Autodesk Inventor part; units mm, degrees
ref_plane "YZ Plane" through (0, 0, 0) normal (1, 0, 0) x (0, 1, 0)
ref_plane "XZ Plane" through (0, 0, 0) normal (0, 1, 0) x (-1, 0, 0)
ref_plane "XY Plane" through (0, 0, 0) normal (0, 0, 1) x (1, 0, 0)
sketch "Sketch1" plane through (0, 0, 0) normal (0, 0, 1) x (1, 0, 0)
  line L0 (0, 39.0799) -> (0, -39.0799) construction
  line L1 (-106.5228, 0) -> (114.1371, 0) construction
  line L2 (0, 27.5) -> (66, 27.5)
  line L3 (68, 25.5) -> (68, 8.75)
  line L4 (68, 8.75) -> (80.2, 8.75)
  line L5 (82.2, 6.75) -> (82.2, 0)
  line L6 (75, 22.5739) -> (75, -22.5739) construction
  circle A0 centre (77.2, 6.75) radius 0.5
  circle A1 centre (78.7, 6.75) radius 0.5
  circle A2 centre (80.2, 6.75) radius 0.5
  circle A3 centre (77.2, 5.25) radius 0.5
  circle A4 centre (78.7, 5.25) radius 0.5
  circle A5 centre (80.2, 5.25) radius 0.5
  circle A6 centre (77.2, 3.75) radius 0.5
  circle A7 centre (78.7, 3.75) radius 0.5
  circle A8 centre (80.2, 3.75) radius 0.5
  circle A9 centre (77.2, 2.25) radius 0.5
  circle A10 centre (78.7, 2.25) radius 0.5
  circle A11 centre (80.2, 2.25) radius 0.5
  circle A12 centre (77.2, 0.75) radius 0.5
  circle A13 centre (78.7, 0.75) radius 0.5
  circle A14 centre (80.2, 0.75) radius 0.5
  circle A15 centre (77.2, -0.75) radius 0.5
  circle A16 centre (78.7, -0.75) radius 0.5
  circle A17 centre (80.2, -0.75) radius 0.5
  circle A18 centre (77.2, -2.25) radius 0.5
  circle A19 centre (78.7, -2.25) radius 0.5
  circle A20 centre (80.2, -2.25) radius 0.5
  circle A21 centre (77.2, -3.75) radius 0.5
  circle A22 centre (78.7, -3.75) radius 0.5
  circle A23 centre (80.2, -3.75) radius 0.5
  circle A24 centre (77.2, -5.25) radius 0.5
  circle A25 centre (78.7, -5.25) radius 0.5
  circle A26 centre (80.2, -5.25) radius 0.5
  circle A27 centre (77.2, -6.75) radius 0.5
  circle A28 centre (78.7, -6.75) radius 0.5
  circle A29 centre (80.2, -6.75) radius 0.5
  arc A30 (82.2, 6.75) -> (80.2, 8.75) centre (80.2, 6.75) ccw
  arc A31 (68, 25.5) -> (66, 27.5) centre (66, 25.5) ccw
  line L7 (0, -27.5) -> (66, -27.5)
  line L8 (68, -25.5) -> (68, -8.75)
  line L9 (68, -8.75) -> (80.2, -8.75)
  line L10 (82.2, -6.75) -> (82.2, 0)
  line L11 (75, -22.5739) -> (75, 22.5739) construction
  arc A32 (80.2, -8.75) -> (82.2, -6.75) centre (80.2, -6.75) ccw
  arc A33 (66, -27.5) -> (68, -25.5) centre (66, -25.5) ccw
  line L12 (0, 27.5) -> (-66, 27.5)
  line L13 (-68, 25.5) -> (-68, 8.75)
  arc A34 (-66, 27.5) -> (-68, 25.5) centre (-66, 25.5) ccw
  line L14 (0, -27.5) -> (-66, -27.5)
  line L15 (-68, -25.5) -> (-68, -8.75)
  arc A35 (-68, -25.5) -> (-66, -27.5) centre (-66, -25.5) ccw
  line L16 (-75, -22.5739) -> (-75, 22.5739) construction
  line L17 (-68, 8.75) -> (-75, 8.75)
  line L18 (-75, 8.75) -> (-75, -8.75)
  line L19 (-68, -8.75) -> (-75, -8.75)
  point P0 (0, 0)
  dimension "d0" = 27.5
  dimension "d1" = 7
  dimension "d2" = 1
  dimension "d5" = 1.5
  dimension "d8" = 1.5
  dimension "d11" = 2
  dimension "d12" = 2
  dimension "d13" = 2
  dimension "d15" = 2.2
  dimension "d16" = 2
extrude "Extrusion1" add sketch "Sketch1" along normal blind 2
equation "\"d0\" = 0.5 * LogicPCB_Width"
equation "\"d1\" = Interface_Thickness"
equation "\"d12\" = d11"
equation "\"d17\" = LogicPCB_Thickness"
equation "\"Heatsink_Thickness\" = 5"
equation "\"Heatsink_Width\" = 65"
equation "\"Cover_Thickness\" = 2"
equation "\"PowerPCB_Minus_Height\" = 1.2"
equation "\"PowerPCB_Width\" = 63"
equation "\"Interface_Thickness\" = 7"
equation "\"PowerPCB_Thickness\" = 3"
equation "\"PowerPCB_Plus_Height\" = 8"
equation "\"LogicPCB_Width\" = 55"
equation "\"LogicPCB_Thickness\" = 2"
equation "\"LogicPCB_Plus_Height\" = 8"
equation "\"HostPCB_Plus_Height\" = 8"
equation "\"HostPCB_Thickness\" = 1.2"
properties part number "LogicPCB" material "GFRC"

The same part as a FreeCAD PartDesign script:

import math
import FreeCAD as App
import Part
import Sketcher
from FreeCAD import Vector
Q = App.Units.Quantity

doc = App.newDocument("Part")
body = doc.addObject("PartDesign::Body", "Body")

# Sketch on XY plane
sketch1 = body.newObject("Sketcher::SketchObject", "Sketch")
sketch1.AttachmentSupport = (doc.getObject("XY_Plane"), [""])
sketch1.MapMode = "FlatFace"
sketch1.addGeometry([
    Part.LineSegment(Vector(66, 27.5, 0), Vector(-66, 27.5, 0)),  # 0
    Part.ArcOfCircle(Part.Circle(Vector(-66, 25.5, 0), Vector(0, 0, 1), 2), math.radians(90), math.radians(180)),  # 1
    Part.LineSegment(Vector(-68, 25.5, 0), Vector(-68, 8.75, 0)),  # 2
    Part.LineSegment(Vector(-68, 8.75, 0), Vector(-75, 8.75, 0)),  # 3
    Part.LineSegment(Vector(-75, 8.75, 0), Vector(-75, -8.75, 0)),  # 4
    Part.LineSegment(Vector(-75, -8.75, 0), Vector(-68, -8.75, 0)),  # 5
    Part.LineSegment(Vector(-68, -8.75, 0), Vector(-68, -25.5, 0)),  # 6
    Part.ArcOfCircle(Part.Circle(Vector(-66, -25.5, 0), Vector(0, 0, 1), 2), math.radians(180), math.radians(270)),  # 7
    Part.LineSegment(Vector(-66, -27.5, 0), Vector(66, -27.5, 0)),  # 8
    Part.ArcOfCircle(Part.Circle(Vector(66, -25.5, 0), Vector(0, 0, 1), 2), math.radians(-90), math.radians(0)),  # 9
    Part.LineSegment(Vector(68, -25.5, 0), Vector(68, -8.75, 0)),  # 10
    Part.LineSegment(Vector(68, -8.75, 0), Vector(80.2, -8.75, 0)),  # 11
    Part.ArcOfCircle(Part.Circle(Vector(80.2, -6.75, 0), Vector(0, 0, 1), 2), math.radians(-90), math.radians(0)),  # 12
    Part.LineSegment(Vector(82.2, -6.75, 0), Vector(82.2, 6.75, 0)),  # 13
    Part.ArcOfCircle(Part.Circle(Vector(80.2, 6.75, 0), Vector(0, 0, 1), 2), math.radians(0), math.radians(90)),  # 14
    Part.LineSegment(Vector(80.2, 8.75, 0), Vector(68, 8.75, 0)),  # 15
    Part.LineSegment(Vector(68, 8.75, 0), Vector(68, 25.5, 0)),  # 16
    Part.ArcOfCircle(Part.Circle(Vector(66, 25.5, 0), Vector(0, 0, 1), 2), math.radians(0), math.radians(90)),  # 17
    Part.Circle(Vector(77.2, -6.75, 0), Vector(0, 0, 1), 0.5),  # 18
    Part.Circle(Vector(77.2, -5.25, 0), Vector(0, 0, 1), 0.5),  # 19
    Part.Circle(Vector(78.7, -6.75, 0), Vector(0, 0, 1), 0.5),  # 20
    Part.Circle(Vector(80.2, -6.75, 0), Vector(0, 0, 1), 0.5),  # 21
    Part.Circle(Vector(78.7, -5.25, 0), Vector(0, 0, 1), 0.5),  # 22
    Part.Circle(Vector(80.2, -5.25, 0), Vector(0, 0, 1), 0.5),  # 23
    Part.Circle(Vector(77.2, -3.75, 0), Vector(0, 0, 1), 0.5),  # 24
    Part.Circle(Vector(78.7, -3.75, 0), Vector(0, 0, 1), 0.5),  # 25
    Part.Circle(Vector(80.2, -3.75, 0), Vector(0, 0, 1), 0.5),  # 26
    Part.Circle(Vector(77.2, -2.25, 0), Vector(0, 0, 1), 0.5),  # 27
    Part.Circle(Vector(78.7, -2.25, 0), Vector(0, 0, 1), 0.5),  # 28
    Part.Circle(Vector(80.2, -2.25, 0), Vector(0, 0, 1), 0.5),  # 29
    Part.Circle(Vector(77.2, -0.75, 0), Vector(0, 0, 1), 0.5),  # 30
    Part.Circle(Vector(78.7, -0.75, 0), Vector(0, 0, 1), 0.5),  # 31
    Part.Circle(Vector(80.2, -0.75, 0), Vector(0, 0, 1), 0.5),  # 32
    Part.Circle(Vector(77.2, 0.75, 0), Vector(0, 0, 1), 0.5),  # 33
    Part.Circle(Vector(78.7, 0.75, 0), Vector(0, 0, 1), 0.5),  # 34
    Part.Circle(Vector(80.2, 0.75, 0), Vector(0, 0, 1), 0.5),  # 35
    Part.Circle(Vector(77.2, 2.25, 0), Vector(0, 0, 1), 0.5),  # 36
    Part.Circle(Vector(78.7, 2.25, 0), Vector(0, 0, 1), 0.5),  # 37
    Part.Circle(Vector(80.2, 2.25, 0), Vector(0, 0, 1), 0.5),  # 38
    Part.Circle(Vector(77.2, 3.75, 0), Vector(0, 0, 1), 0.5),  # 39
    Part.Circle(Vector(78.7, 3.75, 0), Vector(0, 0, 1), 0.5),  # 40
    Part.Circle(Vector(80.2, 3.75, 0), Vector(0, 0, 1), 0.5),  # 41
    Part.Circle(Vector(77.2, 5.25, 0), Vector(0, 0, 1), 0.5),  # 42
    Part.Circle(Vector(77.2, 6.75, 0), Vector(0, 0, 1), 0.5),  # 43
    Part.Circle(Vector(78.7, 5.25, 0), Vector(0, 0, 1), 0.5),  # 44
    Part.Circle(Vector(80.2, 5.25, 0), Vector(0, 0, 1), 0.5),  # 45
    Part.Circle(Vector(78.7, 6.75, 0), Vector(0, 0, 1), 0.5),  # 46
    Part.Circle(Vector(80.2, 6.75, 0), Vector(0, 0, 1), 0.5),  # 47
], False)
sketch1.addConstraint([
    Sketcher.Constraint("Tangent", 0, 2, 1, 1),
    Sketcher.Constraint("Tangent", 1, 2, 2, 1),
    Sketcher.Constraint("Coincident", 2, 2, 3, 1),
    Sketcher.Constraint("Coincident", 3, 2, 4, 1),
    Sketcher.Constraint("Coincident", 4, 2, 5, 1),
    Sketcher.Constraint("Coincident", 5, 2, 6, 1),
    Sketcher.Constraint("Tangent", 6, 2, 7, 1),
    Sketcher.Constraint("Tangent", 7, 2, 8, 1),
    Sketcher.Constraint("Tangent", 8, 2, 9, 1),
    Sketcher.Constraint("Tangent", 9, 2, 10, 1),
    Sketcher.Constraint("Coincident", 10, 2, 11, 1),
    Sketcher.Constraint("Tangent", 11, 2, 12, 1),
    Sketcher.Constraint("Tangent", 12, 2, 13, 1),
    Sketcher.Constraint("Tangent", 13, 2, 14, 1),
    Sketcher.Constraint("Tangent", 14, 2, 15, 1),
    Sketcher.Constraint("Coincident", 15, 2, 16, 1),
    Sketcher.Constraint("Tangent", 16, 2, 17, 1),
    Sketcher.Constraint("Tangent", 17, 2, 0, 1),
    Sketcher.Constraint("Horizontal", 0),
    Sketcher.Constraint("Vertical", 2),
    Sketcher.Constraint("Horizontal", 3),
    Sketcher.Constraint("Vertical", 4),
    Sketcher.Constraint("Horizontal", 5),
    Sketcher.Constraint("Vertical", 6),
    Sketcher.Constraint("Horizontal", 8),
    Sketcher.Constraint("Vertical", 10),
    Sketcher.Constraint("Horizontal", 11),
    Sketcher.Constraint("Vertical", 13),
    Sketcher.Constraint("Horizontal", 15),
    Sketcher.Constraint("Vertical", 16),
    Sketcher.Constraint("Coincident", 21, 3, 12, 3),
    Sketcher.Constraint("Coincident", 47, 3, 14, 3),
    Sketcher.Constraint("Equal", 1, 7),
    Sketcher.Constraint("Equal", 7, 9),
    Sketcher.Constraint("Equal", 9, 12),
    Sketcher.Constraint("Equal", 12, 14),
    Sketcher.Constraint("Equal", 14, 17),
    Sketcher.Constraint("Equal", 18, 19),
    Sketcher.Constraint("Equal", 19, 20),
    Sketcher.Constraint("Equal", 20, 21),
    Sketcher.Constraint("Equal", 21, 22),
    Sketcher.Constraint("Equal", 22, 23),
    Sketcher.Constraint("Equal", 23, 24),
    Sketcher.Constraint("Equal", 24, 25),
    Sketcher.Constraint("Equal", 25, 26),
    Sketcher.Constraint("Equal", 26, 27),
    Sketcher.Constraint("Equal", 27, 28),
    Sketcher.Constraint("Equal", 28, 29),
    Sketcher.Constraint("Equal", 29, 30),
    Sketcher.Constraint("Equal", 30, 31),
    Sketcher.Constraint("Equal", 31, 32),
    Sketcher.Constraint("Equal", 32, 33),
    Sketcher.Constraint("Equal", 33, 34),
    Sketcher.Constraint("Equal", 34, 35),
    Sketcher.Constraint("Equal", 35, 36),
    Sketcher.Constraint("Equal", 36, 37),
    Sketcher.Constraint("Equal", 37, 38),
    Sketcher.Constraint("Equal", 38, 39),
    Sketcher.Constraint("Equal", 39, 40),
    Sketcher.Constraint("Equal", 40, 41),
    Sketcher.Constraint("Equal", 41, 42),
    Sketcher.Constraint("Equal", 42, 43),
    Sketcher.Constraint("Equal", 43, 44),
    Sketcher.Constraint("Equal", 44, 45),
    Sketcher.Constraint("Equal", 45, 46),
    Sketcher.Constraint("Equal", 46, 47),
    Sketcher.Constraint("Symmetric", 1, 3, 9, 3, -1, 1),
    Sketcher.Constraint("Symmetric", 5, 2, 15, 2, -1, 1),
    Sketcher.Constraint("Symmetric", 5, 2, 10, 2, -2),
    Sketcher.Constraint("Symmetric", 30, 3, 33, 3, -1),
    Sketcher.Constraint("Symmetric", 31, 3, 34, 3, -1),
    Sketcher.Constraint("Symmetric", 32, 3, 35, 3, -1),
    Sketcher.Constraint("Symmetric", 27, 3, 36, 3, -1),
    Sketcher.Constraint("Symmetric", 28, 3, 37, 3, -1),
    Sketcher.Constraint("Symmetric", 29, 3, 38, 3, -1),
    Sketcher.Constraint("Symmetric", 24, 3, 39, 3, -1),
    Sketcher.Constraint("Symmetric", 25, 3, 40, 3, -1),
    Sketcher.Constraint("Symmetric", 26, 3, 41, 3, -1),
    Sketcher.Constraint("Symmetric", 19, 3, 42, 3, -1),
    Sketcher.Constraint("Symmetric", 18, 3, 43, 3, -1),
    Sketcher.Constraint("Symmetric", 22, 3, 44, 3, -1),
    Sketcher.Constraint("Symmetric", 23, 3, 45, 3, -1),
    Sketcher.Constraint("Symmetric", 20, 3, 46, 3, -1),
    Sketcher.Constraint("Horizontal", 12, 3, 18, 3),
    Sketcher.Constraint("Horizontal", 18, 3, 20, 3),
    Sketcher.Constraint("Horizontal", 19, 3, 22, 3),
    Sketcher.Constraint("Horizontal", 22, 3, 23, 3),
    Sketcher.Constraint("Horizontal", 24, 3, 25, 3),
    Sketcher.Constraint("Horizontal", 25, 3, 26, 3),
    Sketcher.Constraint("Horizontal", 27, 3, 28, 3),
    Sketcher.Constraint("Horizontal", 28, 3, 29, 3),
    Sketcher.Constraint("Horizontal", 30, 3, 31, 3),
    Sketcher.Constraint("Horizontal", 31, 3, 32, 3),
    Sketcher.Constraint("Horizontal", 3, 2, 14, 2),
    Sketcher.Constraint("Vertical", 18, 3, 19, 3),
    Sketcher.Constraint("Vertical", 20, 3, 22, 3),
    Sketcher.Constraint("Vertical", 21, 3, 23, 3),
    Sketcher.Constraint("Vertical", 19, 3, 24, 3),
    Sketcher.Constraint("Vertical", 22, 3, 25, 3),
    Sketcher.Constraint("Vertical", 23, 3, 26, 3),
    Sketcher.Constraint("Vertical", 24, 3, 27, 3),
    Sketcher.Constraint("Vertical", 25, 3, 28, 3),
    Sketcher.Constraint("Vertical", 26, 3, 29, 3),
    Sketcher.Constraint("Vertical", 27, 3, 30, 3),
    Sketcher.Constraint("Vertical", 28, 3, 31, 3),
    Sketcher.Constraint("Vertical", 29, 3, 32, 3),
    Sketcher.Constraint("Diameter", 18, Q("1 mm")),
    Sketcher.Constraint("Radius", 1, Q("2 mm")),
    Sketcher.Constraint("DistanceX", 3, 2, 3, 1, Q("7 mm")),
    Sketcher.Constraint("DistanceY", -1, 1, 0, 2, Q("27.5 mm")),
    Sketcher.Constraint("DistanceY", 18, 3, 19, 3, Q("1.5 mm")),
    Sketcher.Constraint("DistanceX", 20, 3, 12, 3, Q("1.5 mm")),
    Sketcher.Constraint("DistanceX", 18, 3, 20, 3, Q("1.5 mm")),
    Sketcher.Constraint("DistanceY", 19, 3, 24, 3, Q("1.5 mm")),
    Sketcher.Constraint("DistanceY", 24, 3, 27, 3, Q("1.5 mm")),
    Sketcher.Constraint("DistanceY", 27, 3, 30, 3, Q("1.5 mm")),
    Sketcher.Constraint("DistanceY", 30, 3, 33, 3, Q("1.5 mm")),
    Sketcher.Constraint("DistanceX", 0, 2, 0, 1, Q("132 mm")),
    Sketcher.Constraint("DistanceX", 11, 1, 11, 2, Q("12.2 mm")),
])
pad1 = body.newObject("PartDesign::Pad", "Pad")
pad1.Profile = sketch1
pad1.Length = 2

doc.recompute()
